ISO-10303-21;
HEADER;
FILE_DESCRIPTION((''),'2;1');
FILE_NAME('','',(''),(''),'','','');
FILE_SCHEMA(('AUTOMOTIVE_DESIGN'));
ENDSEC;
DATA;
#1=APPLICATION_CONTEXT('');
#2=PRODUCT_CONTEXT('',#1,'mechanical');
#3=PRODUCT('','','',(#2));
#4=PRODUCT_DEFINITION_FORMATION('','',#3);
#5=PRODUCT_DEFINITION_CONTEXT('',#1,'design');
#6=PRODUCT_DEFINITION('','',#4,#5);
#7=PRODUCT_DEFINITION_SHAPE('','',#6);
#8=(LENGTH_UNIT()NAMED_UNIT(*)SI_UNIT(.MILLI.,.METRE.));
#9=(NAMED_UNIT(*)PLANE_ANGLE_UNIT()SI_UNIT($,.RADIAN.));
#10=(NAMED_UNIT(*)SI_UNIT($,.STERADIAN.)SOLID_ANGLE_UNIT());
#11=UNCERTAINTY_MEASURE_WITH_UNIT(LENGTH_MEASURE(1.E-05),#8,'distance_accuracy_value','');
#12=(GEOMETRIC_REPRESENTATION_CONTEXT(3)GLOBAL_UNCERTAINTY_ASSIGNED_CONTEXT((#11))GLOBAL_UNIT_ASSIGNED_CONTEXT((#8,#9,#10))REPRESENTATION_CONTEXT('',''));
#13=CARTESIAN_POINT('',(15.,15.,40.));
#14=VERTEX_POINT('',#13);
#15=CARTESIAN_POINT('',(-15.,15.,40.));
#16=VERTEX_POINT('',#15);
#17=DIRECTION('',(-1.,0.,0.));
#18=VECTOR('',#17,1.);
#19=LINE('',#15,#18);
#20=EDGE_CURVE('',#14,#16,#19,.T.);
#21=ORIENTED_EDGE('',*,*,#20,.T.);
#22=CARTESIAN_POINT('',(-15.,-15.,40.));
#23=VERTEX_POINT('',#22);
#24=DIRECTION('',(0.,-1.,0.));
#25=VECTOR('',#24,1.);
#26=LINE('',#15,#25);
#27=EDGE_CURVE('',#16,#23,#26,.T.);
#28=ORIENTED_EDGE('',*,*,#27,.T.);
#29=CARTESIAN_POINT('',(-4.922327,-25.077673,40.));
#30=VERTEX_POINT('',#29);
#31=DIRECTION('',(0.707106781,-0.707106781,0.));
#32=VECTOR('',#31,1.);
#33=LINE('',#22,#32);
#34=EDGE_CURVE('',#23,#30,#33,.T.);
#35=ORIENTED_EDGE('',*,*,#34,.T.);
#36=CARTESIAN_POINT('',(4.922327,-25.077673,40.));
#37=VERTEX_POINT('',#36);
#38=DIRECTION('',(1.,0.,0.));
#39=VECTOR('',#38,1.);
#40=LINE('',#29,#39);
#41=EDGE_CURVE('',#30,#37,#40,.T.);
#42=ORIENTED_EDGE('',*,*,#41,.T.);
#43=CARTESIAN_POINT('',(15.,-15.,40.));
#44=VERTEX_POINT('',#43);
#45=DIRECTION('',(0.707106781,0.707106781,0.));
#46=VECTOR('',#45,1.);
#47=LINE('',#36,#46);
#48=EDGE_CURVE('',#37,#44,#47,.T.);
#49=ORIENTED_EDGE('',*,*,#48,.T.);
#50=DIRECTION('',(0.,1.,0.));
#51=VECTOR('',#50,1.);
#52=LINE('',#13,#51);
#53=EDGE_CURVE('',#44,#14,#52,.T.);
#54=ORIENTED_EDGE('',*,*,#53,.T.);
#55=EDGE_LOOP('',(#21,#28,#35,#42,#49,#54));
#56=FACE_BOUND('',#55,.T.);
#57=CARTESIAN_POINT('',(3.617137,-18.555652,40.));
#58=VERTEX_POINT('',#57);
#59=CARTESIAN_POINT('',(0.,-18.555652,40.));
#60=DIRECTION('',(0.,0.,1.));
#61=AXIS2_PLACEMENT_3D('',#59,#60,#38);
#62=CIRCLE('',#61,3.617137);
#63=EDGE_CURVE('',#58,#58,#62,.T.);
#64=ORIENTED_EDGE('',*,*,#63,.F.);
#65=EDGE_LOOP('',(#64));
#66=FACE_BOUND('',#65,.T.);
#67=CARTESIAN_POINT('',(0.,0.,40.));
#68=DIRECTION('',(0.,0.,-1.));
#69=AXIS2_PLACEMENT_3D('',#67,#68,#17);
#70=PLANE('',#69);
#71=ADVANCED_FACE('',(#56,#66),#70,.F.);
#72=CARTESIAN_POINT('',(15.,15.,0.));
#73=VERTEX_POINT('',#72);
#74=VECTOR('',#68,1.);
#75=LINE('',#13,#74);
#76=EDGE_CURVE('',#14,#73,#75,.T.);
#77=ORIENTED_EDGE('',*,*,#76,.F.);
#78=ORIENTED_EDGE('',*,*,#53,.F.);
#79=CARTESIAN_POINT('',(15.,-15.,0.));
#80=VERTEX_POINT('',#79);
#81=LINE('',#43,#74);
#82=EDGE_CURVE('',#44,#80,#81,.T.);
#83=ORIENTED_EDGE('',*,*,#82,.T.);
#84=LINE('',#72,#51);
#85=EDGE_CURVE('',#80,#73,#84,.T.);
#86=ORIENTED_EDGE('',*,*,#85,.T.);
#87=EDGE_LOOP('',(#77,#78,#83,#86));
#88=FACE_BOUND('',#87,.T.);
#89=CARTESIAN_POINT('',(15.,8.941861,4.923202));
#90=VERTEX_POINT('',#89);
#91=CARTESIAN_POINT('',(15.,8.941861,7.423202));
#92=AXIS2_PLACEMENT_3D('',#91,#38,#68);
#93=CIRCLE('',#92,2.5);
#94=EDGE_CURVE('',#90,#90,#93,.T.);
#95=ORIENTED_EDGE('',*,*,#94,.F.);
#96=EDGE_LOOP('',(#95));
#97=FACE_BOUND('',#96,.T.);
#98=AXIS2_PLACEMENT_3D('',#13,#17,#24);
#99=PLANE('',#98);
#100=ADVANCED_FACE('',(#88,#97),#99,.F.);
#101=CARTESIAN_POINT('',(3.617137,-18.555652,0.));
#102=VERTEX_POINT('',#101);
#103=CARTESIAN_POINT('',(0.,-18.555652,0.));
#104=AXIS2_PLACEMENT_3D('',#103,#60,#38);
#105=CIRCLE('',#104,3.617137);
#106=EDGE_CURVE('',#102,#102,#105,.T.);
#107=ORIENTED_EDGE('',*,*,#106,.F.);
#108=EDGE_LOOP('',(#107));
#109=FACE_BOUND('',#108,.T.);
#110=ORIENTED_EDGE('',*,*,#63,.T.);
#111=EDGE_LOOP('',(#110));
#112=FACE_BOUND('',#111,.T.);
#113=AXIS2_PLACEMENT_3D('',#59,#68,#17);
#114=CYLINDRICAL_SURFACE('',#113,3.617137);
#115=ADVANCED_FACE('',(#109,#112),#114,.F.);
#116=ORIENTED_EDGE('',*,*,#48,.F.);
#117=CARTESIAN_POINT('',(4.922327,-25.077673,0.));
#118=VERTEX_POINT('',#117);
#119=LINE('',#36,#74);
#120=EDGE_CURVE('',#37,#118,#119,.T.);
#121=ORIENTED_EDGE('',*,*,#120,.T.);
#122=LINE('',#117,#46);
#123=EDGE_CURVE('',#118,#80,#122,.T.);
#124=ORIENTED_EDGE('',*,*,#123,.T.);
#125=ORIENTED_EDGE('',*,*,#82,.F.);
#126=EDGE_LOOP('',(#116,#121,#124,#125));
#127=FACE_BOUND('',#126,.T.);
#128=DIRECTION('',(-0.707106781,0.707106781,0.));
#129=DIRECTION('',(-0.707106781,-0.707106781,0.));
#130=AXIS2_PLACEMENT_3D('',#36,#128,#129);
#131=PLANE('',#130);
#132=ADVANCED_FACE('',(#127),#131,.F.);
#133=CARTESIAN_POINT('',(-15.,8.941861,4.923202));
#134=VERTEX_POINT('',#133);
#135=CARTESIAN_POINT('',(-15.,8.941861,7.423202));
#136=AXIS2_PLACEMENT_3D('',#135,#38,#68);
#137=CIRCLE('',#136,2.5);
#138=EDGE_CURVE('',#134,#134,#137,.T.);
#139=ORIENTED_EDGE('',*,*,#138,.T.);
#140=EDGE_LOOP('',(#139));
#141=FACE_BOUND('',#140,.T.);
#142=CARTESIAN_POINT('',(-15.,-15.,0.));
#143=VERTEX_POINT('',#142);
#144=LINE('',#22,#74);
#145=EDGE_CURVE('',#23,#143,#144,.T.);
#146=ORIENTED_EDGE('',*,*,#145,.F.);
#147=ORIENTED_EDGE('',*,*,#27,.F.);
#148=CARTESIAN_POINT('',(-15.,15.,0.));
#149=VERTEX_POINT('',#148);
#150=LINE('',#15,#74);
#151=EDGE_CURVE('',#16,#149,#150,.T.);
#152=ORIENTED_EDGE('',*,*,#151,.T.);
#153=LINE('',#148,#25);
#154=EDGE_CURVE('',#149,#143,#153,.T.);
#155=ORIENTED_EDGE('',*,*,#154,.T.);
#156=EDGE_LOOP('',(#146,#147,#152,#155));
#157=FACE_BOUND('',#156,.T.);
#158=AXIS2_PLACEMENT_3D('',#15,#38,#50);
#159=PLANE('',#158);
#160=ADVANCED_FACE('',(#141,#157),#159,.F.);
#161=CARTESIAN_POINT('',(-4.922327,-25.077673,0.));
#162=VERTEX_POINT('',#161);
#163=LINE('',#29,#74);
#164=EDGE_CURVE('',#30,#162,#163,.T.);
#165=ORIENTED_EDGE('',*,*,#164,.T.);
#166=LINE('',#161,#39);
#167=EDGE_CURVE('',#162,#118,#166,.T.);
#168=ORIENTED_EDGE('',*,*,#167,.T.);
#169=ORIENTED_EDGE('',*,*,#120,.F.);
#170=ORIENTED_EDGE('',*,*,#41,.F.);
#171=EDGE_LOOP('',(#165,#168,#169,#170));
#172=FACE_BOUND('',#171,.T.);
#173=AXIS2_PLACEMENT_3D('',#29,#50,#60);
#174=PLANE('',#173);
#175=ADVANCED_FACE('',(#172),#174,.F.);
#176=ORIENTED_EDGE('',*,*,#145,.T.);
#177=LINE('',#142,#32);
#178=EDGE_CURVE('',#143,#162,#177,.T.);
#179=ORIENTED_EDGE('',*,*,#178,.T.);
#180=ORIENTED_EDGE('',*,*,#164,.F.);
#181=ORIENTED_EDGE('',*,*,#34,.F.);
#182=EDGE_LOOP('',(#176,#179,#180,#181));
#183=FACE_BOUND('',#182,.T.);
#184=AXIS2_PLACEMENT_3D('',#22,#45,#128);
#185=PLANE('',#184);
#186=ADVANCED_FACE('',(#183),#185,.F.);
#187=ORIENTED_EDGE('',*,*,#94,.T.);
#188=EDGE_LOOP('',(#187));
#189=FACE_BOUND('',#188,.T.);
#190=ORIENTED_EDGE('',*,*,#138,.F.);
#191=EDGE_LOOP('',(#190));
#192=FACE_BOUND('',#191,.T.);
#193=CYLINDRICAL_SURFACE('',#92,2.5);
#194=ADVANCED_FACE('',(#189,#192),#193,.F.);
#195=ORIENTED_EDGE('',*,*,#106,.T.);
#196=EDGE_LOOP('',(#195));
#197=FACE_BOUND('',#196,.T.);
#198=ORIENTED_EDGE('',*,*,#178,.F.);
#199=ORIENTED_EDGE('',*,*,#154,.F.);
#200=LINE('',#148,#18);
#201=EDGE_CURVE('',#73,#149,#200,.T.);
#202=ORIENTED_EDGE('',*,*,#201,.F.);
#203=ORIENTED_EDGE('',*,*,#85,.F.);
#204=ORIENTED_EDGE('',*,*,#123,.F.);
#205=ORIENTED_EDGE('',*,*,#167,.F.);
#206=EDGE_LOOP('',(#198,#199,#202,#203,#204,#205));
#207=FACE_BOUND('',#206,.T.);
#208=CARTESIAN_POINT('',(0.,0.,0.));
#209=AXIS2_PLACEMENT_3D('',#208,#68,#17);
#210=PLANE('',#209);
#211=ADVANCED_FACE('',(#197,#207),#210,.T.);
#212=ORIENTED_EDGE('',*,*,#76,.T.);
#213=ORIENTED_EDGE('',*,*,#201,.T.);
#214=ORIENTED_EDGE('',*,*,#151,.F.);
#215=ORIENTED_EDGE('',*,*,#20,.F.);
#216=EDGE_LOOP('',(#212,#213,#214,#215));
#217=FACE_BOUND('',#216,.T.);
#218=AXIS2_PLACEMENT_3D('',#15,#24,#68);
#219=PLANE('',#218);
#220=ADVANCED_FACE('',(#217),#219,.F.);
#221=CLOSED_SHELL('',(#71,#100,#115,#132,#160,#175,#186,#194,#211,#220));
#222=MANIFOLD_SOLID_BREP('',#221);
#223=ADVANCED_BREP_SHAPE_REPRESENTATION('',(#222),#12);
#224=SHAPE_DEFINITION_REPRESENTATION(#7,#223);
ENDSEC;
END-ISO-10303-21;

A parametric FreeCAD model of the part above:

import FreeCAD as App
import Part
import Sketcher


def add_polygon(sketch, points):
    """Adds a closed chain of lines whose ends are joined by coincident constraints."""
    first, n = sketch.GeometryCount, len(points)
    for a, b in zip(points, points[1:] + points[:1]):
        sketch.addGeometry(Part.LineSegment(App.Vector(*a, 0), App.Vector(*b, 0)), False)
    for i in range(n):
        sketch.addConstraint(Sketcher.Constraint("Coincident", first + i, 2, first + (i + 1) % n, 1))

doc = App.newDocument("Part")
body = doc.addObject("PartDesign::Body", "Body")

sketch1 = body.newObject("Sketcher::SketchObject", "Sketch")
sketch1.AttachmentSupport = (doc.getObject("XY_Plane"), [""])
sketch1.MapMode = "FlatFace"
add_polygon(sketch1, [(-15, -15), (-4.9, -25.1), (4.9, -25.1), (15, -15), (15, 15), (-15, 15)])
sketch1.addGeometry(Part.Circle(App.Vector(0, -18.6, 0), App.Vector(0, 0, 1), 3.6), False)
sketch1.addConstraint([
    Sketcher.Constraint("Horizontal", 1),
    Sketcher.Constraint("Vertical", 3),
    Sketcher.Constraint("Horizontal", 4),
    Sketcher.Constraint("Vertical", 5),
    Sketcher.Constraint("Symmetric", 2, 2, 4, 2, -1, 1),
    Sketcher.Constraint("PointOnObject", 6, 3, -2),
    Sketcher.Constraint("Perpendicular", 0, 2),
    Sketcher.Constraint("Horizontal", 2, 2, 5, 2),
    Sketcher.Constraint("Equal", 4, 3),
    Sketcher.Constraint("Equal", 0, 2),
    Sketcher.Constraint("DistanceX", 4, 2, 4, 1, 30.0),
    Sketcher.Constraint("Diameter", 6, 7.234274),
    Sketcher.Constraint("Distance", 0, 14.251982),
    Sketcher.Constraint("DistanceY", 0, 2, 6, 3, 6.522021),
])
pad1 = body.newObject("PartDesign::Pad", "Pad")
pad1.Profile = sketch1
pad1.Length = 40

sketch2 = body.newObject("Sketcher::SketchObject", "Sketch001")
sketch2.AttachmentSupport = (doc.getObject("YZ_Plane"), [""])
sketch2.MapMode = "FlatFace"
sketch2.AttachmentOffset = App.Placement(App.Vector(0, 0, 15), App.Rotation())
sketch2.addGeometry(Part.Circle(App.Vector(8.9, 7.4, 0), App.Vector(0, 0, 1), 2.5), False)
sketch2.addConstraint([
    Sketcher.Constraint("Diameter", 0, 5.0),
    Sketcher.Constraint("DistanceY", -1, 1, 0, 3, 7.423202),
    Sketcher.Constraint("DistanceX", -1, 1, 0, 3, 8.941861),
])
doc.recompute()
hole = body.newObject("PartDesign::Hole", "Hole")
hole.Profile = sketch2
hole.ThreadType = "None"
hole.Diameter = 5
hole.DepthType = "ThroughAll"

doc.recompute()
